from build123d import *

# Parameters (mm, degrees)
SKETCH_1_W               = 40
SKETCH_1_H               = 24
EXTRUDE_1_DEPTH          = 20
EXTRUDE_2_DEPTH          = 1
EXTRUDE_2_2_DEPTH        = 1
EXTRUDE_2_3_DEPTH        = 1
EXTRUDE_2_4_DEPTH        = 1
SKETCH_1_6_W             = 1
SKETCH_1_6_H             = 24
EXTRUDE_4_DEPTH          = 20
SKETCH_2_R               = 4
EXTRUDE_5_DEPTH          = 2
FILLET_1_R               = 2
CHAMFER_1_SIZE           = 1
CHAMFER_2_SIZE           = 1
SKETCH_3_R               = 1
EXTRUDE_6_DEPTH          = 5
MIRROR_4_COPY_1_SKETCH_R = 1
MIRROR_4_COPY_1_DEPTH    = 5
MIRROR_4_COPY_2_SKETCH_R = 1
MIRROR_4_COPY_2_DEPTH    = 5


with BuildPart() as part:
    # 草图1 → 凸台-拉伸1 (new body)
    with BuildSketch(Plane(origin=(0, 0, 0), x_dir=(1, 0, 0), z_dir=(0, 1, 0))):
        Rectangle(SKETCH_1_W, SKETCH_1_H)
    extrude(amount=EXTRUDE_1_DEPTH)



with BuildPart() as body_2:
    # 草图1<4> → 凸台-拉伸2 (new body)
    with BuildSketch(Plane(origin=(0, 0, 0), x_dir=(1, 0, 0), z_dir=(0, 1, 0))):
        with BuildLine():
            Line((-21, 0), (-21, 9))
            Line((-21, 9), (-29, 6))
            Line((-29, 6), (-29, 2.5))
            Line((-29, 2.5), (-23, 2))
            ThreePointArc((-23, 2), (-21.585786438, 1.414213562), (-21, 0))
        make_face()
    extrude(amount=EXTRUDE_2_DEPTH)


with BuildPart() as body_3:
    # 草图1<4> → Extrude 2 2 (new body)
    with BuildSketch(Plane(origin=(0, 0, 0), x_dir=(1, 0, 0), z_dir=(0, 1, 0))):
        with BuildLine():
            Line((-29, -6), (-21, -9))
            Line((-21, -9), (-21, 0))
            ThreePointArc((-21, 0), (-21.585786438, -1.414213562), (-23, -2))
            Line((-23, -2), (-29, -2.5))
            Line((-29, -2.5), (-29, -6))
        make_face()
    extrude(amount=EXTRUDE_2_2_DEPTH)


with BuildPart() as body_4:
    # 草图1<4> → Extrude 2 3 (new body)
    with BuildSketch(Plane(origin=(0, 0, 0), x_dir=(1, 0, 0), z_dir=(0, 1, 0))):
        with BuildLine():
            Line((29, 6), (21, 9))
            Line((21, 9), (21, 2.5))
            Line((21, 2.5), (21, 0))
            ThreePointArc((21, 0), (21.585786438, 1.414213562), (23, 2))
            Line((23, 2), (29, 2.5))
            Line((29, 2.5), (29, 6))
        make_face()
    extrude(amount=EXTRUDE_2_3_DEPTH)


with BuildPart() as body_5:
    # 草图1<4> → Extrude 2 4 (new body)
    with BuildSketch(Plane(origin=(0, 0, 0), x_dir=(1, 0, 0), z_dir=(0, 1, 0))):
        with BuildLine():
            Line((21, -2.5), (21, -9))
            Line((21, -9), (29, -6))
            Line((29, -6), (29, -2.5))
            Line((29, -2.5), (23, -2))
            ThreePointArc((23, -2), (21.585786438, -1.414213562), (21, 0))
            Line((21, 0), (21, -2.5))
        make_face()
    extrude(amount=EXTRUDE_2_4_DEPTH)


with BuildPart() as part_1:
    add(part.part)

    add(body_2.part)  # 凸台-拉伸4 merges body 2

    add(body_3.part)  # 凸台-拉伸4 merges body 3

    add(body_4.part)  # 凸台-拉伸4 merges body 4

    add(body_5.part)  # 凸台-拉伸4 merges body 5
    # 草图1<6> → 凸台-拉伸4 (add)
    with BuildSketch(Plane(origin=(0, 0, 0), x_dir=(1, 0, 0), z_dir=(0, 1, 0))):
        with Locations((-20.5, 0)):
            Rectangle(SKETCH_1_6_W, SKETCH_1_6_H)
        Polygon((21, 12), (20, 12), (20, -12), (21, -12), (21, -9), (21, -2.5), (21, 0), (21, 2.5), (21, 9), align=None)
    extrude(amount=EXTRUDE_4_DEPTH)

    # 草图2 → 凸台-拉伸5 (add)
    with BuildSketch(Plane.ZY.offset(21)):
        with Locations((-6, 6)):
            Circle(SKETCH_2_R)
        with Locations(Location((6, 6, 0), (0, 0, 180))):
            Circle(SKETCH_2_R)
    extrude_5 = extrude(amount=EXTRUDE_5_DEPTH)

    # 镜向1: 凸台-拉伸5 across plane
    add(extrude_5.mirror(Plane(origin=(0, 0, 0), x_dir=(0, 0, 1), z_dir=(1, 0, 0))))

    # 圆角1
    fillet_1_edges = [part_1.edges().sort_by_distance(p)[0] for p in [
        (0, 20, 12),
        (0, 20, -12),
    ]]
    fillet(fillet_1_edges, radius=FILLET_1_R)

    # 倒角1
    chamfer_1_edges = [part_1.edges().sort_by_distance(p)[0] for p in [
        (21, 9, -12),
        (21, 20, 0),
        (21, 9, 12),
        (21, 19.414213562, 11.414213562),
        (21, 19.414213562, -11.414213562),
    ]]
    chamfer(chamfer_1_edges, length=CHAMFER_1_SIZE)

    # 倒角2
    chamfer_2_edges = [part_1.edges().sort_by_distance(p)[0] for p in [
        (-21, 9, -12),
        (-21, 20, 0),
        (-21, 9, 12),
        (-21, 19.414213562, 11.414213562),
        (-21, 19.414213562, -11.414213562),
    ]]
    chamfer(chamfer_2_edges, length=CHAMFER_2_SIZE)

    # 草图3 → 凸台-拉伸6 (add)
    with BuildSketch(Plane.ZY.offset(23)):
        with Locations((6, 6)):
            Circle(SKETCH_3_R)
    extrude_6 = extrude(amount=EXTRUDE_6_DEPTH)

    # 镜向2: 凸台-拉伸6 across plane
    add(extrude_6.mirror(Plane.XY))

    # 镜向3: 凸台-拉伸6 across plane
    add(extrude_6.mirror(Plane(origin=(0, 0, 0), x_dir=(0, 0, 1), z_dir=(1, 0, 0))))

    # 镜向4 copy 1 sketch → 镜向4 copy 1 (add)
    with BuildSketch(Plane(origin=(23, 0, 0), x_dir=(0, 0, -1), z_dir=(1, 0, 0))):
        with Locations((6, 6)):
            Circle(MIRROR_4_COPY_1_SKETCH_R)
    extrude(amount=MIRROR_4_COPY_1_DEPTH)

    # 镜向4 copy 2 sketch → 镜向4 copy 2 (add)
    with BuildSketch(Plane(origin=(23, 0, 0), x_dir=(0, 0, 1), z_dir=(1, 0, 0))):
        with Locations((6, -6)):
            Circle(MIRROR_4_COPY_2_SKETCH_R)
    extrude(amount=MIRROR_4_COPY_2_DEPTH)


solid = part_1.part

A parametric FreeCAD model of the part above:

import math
import FreeCAD as App
import Part
import Sketcher


def edges_at(feature, points):
    """Names of the edges that pass closest to the given points."""
    edges = feature.Shape.Edges
    near = lambda p: min(range(len(edges)), key=lambda i: edges[i].distToShape(Part.Vertex(*p))[0])
    return sorted({f"Edge{near(p) + 1}" for p in points})

doc = App.newDocument("Part")
body = doc.addObject("PartDesign::Body", "Body")

# Sketch on XZ plane
sketch1 = body.newObject("Sketcher::SketchObject", "Sketch")
sketch1.AttachmentSupport = (doc.getObject("XZ_Plane"), [""])
sketch1.MapMode = "FlatFace"
sketch1.addGeometry(Part.LineSegment(App.Vector(-20, -12, 0), App.Vector(-20, 12, 0)), False)
sketch1.addGeometry(Part.LineSegment(App.Vector(-20, 12, 0), App.Vector(20, 12, 0)), False)
sketch1.addGeometry(Part.LineSegment(App.Vector(20, 12, 0), App.Vector(20, -12, 0)), False)
sketch1.addGeometry(Part.LineSegment(App.Vector(20, -12, 0), App.Vector(-20, -12, 0)), False)
sketch1.addConstraint(Sketcher.Constraint("Coincident", 0, 2, 1, 1))
sketch1.addConstraint(Sketcher.Constraint("Coincident", 1, 2, 2, 1))
sketch1.addConstraint(Sketcher.Constraint("Coincident", 2, 2, 3, 1))
sketch1.addConstraint(Sketcher.Constraint("Coincident", 3, 2, 0, 1))
sketch1.addConstraint(Sketcher.Constraint("Vertical", 0))
sketch1.addConstraint(Sketcher.Constraint("Horizontal", 1))
sketch1.addConstraint(Sketcher.Constraint("Vertical", 2))
sketch1.addConstraint(Sketcher.Constraint("Horizontal", 3))
sketch1.addConstraint(Sketcher.Constraint("Symmetric", 0, 2, 2, 2, -1, 1))
sketch1.addConstraint(Sketcher.Constraint("DistanceX", 1, 1, 1, 2, 40.0))
sketch1.addConstraint(Sketcher.Constraint("DistanceY", 0, 1, 0, 2, 24.0))
pad1 = body.newObject("PartDesign::Pad", "Pad")
pad1.Profile = sketch1
pad1.Length = 20
pad1.Reversed = True
body2 = doc.addObject("PartDesign::Body", "Body001")

# Sketch on XZ plane
sketch2 = body2.newObject("Sketcher::SketchObject", "Sketch001")
sketch2.AttachmentSupport = (doc.getObject("XZ_Plane001"), [""])
sketch2.MapMode = "FlatFace"
sketch2.addGeometry(Part.LineSegment(App.Vector(-21, 0, 0), App.Vector(-21, -9, 0)), False)
sketch2.addGeometry(Part.LineSegment(App.Vector(-21, -9, 0), App.Vector(-29, -6, 0)), False)
sketch2.addGeometry(Part.LineSegment(App.Vector(-29, -6, 0), App.Vector(-29, -2.5, 0)), False)
sketch2.addGeometry(Part.LineSegment(App.Vector(-29, -2.5, 0), App.Vector(-23, -2, 0)), False)
sketch2.addGeometry(Part.ArcOfCircle(Part.Circle(App.Vector(-23, 0, 0), App.Vector(0, 0, 1), 2), math.radians(-90), math.radians(0)), False)
sketch2.addConstraint(Sketcher.Constraint("Coincident", 0, 2, 1, 1))
sketch2.addConstraint(Sketcher.Constraint("Coincident", 1, 2, 2, 1))
sketch2.addConstraint(Sketcher.Constraint("Coincident", 2, 2, 3, 1))
sketch2.addConstraint(Sketcher.Constraint("Coincident", 3, 2, 4, 1))
sketch2.addConstraint(Sketcher.Constraint("Tangent", 4, 2, 0, 1))
sketch2.addConstraint(Sketcher.Constraint("Vertical", 0))
sketch2.addConstraint(Sketcher.Constraint("Vertical", 2))
sketch2.addConstraint(Sketcher.Constraint("PointOnObject", 4, 3, -1))
sketch2.addConstraint(Sketcher.Constraint("Vertical", 4, 3, 3, 2))
sketch2.addConstraint(Sketcher.Constraint("Radius", 4, 2.0))
sketch2.addConstraint(Sketcher.Constraint("DistanceY", 0, 2, 0, 1, 9.0))
sketch2.addConstraint(Sketcher.Constraint("DistanceY", 2, 1, 2, 2, 3.5))
sketch2.addConstraint(Sketcher.Constraint("DistanceX", 4, 3, -1, 1, 23.0))
sketch2.addConstraint(Sketcher.Constraint("DistanceX", 1, 2, -1, 1, 29.0))
sketch2.addConstraint(Sketcher.Constraint("DistanceY", 1, 2, -1, 1, 6.0))
pad2 = body2.newObject("PartDesign::Pad", "Pad001")
pad2.Profile = sketch2
pad2.Length = 1
pad2.Reversed = True
body3 = doc.addObject("PartDesign::Body", "Body002")

# Sketch on XZ plane
sketch3 = body3.newObject("Sketcher::SketchObject", "Sketch002")
sketch3.AttachmentSupport = (doc.getObject("XZ_Plane002"), [""])
sketch3.MapMode = "FlatFace"
sketch3.addGeometry(Part.LineSegment(App.Vector(-29, 6, 0), App.Vector(-21, 9, 0)), False)
sketch3.addGeometry(Part.LineSegment(App.Vector(-21, 9, 0), App.Vector(-21, 0, 0)), False)
sketch3.addGeometry(Part.ArcOfCircle(Part.Circle(App.Vector(-23, 0, 0), App.Vector(0, 0, 1), 2), math.radians(0), math.radians(90)), False)
sketch3.addGeometry(Part.LineSegment(App.Vector(-23, 2, 0), App.Vector(-29, 2.5, 0)), False)
sketch3.addGeometry(Part.LineSegment(App.Vector(-29, 2.5, 0), App.Vector(-29, 6, 0)), False)
sketch3.addConstraint(Sketcher.Constraint("Coincident", 0, 2, 1, 1))
sketch3.addConstraint(Sketcher.Constraint("Tangent", 1, 2, 2, 1))
sketch3.addConstraint(Sketcher.Constraint("Coincident", 2, 2, 3, 1))
sketch3.addConstraint(Sketcher.Constraint("Coincident", 3, 2, 4, 1))
sketch3.addConstraint(Sketcher.Constraint("Coincident", 4, 2, 0, 1))
sketch3.addConstraint(Sketcher.Constraint("Vertical", 1))
sketch3.addConstraint(Sketcher.Constraint("Vertical", 4))
sketch3.addConstraint(Sketcher.Constraint("PointOnObject", 2, 3, -1))
sketch3.addConstraint(Sketcher.Constraint("Radius", 2, 2.0))
sketch3.addConstraint(Sketcher.Constraint("DistanceY", 1, 2, 1, 1, 9.0))
sketch3.addConstraint(Sketcher.Constraint("DistanceY", 4, 1, 4, 2, 3.5))
sketch3.addConstraint(Sketcher.Constraint("DistanceX", 2, 3, -1, 1, 23.0))
sketch3.addConstraint(Sketcher.Constraint("DistanceX", 2, 2, -1, 1, 23.0))
sketch3.addConstraint(Sketcher.Constraint("DistanceX", 3, 2, -1, 1, 29.0))
sketch3.addConstraint(Sketcher.Constraint("DistanceY", -1, 1, 4, 2, 6.0))
pad3 = body3.newObject("PartDesign::Pad", "Pad002")
pad3.Profile = sketch3
pad3.Length = 1
pad3.Reversed = True
body4 = doc.addObject("PartDesign::Body", "Body003")

# Sketch on XZ plane
sketch4 = body4.newObject("Sketcher::SketchObject", "Sketch003")
sketch4.AttachmentSupport = (doc.getObject("XZ_Plane003"), [""])
sketch4.MapMode = "FlatFace"
sketch4.addGeometry(Part.LineSegment(App.Vector(29, -6, 0), App.Vector(21, -9, 0)), False)
sketch4.addGeometry(Part.LineSegment(App.Vector(21, -9, 0), App.Vector(21, 0, 0)), False)
sketch4.addGeometry(Part.ArcOfCircle(Part.Circle(App.Vector(23, 0, 0), App.Vector(0, 0, 1), 2), math.radians(-180), math.radians(-90)), False)
sketch4.addGeometry(Part.LineSegment(App.Vector(23, -2, 0), App.Vector(29, -2.5, 0)), False)
sketch4.addGeometry(Part.LineSegment(App.Vector(29, -2.5, 0), App.Vector(29, -6, 0)), False)
sketch4.addConstraint(Sketcher.Constraint("Coincident", 0, 2, 1, 1))
sketch4.addConstraint(Sketcher.Constraint("Tangent", 1, 2, 2, 1))
sketch4.addConstraint(Sketcher.Constraint("Coincident", 2, 2, 3, 1))
sketch4.addConstraint(Sketcher.Constraint("Coincident", 3, 2, 4, 1))
sketch4.addConstraint(Sketcher.Constraint("Coincident", 4, 2, 0, 1))
sketch4.addConstraint(Sketcher.Constraint("Vertical", 1))
sketch4.addConstraint(Sketcher.Constraint("Vertical", 4))
sketch4.addConstraint(Sketcher.Constraint("PointOnObject", 2, 3, -1))
sketch4.addConstraint(Sketcher.Constraint("Radius", 2, 2.0))
sketch4.addConstraint(Sketcher.Constraint("DistanceY", 1, 1, 1, 2, 9.0))
sketch4.addConstraint(Sketcher.Constraint("DistanceY", 4, 2, 4, 1, 3.5))
sketch4.addConstraint(Sketcher.Constraint("DistanceX", -1, 1, 2, 3, 23.0))
sketch4.addConstraint(Sketcher.Constraint("DistanceX", -1, 1, 2, 2, 23.0))
sketch4.addConstraint(Sketcher.Constraint("DistanceX", -1, 1, 3, 2, 29.0))
sketch4.addConstraint(Sketcher.Constraint("DistanceY", 4, 2, -1, 1, 6.0))
pad4 = body4.newObject("PartDesign::Pad", "Pad003")
pad4.Profile = sketch4
pad4.Length = 1
pad4.Reversed = True
body5 = doc.addObject("PartDesign::Body", "Body004")

# Sketch on XZ plane
sketch5 = body5.newObject("Sketcher::SketchObject", "Sketch004")
sketch5.AttachmentSupport = (doc.getObject("XZ_Plane004"), [""])
sketch5.MapMode = "FlatFace"
sketch5.addGeometry(Part.LineSegment(App.Vector(21, 9, 0), App.Vector(29, 6, 0)), False)
sketch5.addGeometry(Part.LineSegment(App.Vector(29, 6, 0), App.Vector(29, 2.5, 0)), False)
sketch5.addGeometry(Part.LineSegment(App.Vector(29, 2.5, 0), App.Vector(23, 2, 0)), False)
sketch5.addGeometry(Part.ArcOfCircle(Part.Circle(App.Vector(23, 0, 0), App.Vector(0, 0, 1), 2), math.radians(90), math.radians(180)), False)
sketch5.addGeometry(Part.LineSegment(App.Vector(21, 0, 0), App.Vector(21, 9, 0)), False)
sketch5.addConstraint(Sketcher.Constraint("Coincident", 0, 2, 1, 1))
sketch5.addConstraint(Sketcher.Constraint("Coincident", 1, 2, 2, 1))
sketch5.addConstraint(Sketcher.Constraint("Coincident", 2, 2, 3, 1))
sketch5.addConstraint(Sketcher.Constraint("Tangent", 3, 2, 4, 1))
sketch5.addConstraint(Sketcher.Constraint("Coincident", 4, 2, 0, 1))
sketch5.addConstraint(Sketcher.Constraint("Vertical", 1))
sketch5.addConstraint(Sketcher.Constraint("Vertical", 4))
sketch5.addConstraint(Sketcher.Constraint("PointOnObject", 3, 3, -1))
sketch5.addConstraint(Sketcher.Constraint("Vertical", 3, 3, 2, 2))
sketch5.addConstraint(Sketcher.Constraint("Radius", 3, 2.0))
sketch5.addConstraint(Sketcher.Constraint("DistanceY", 4, 1, 4, 2, 9.0))
sketch5.addConstraint(Sketcher.Constraint("DistanceY", 1, 2, 1, 1, 3.5))
sketch5.addConstraint(Sketcher.Constraint("DistanceX", -1, 1, 3, 3, 23.0))
sketch5.addConstraint(Sketcher.Constraint("DistanceX", -1, 1, 0, 2, 29.0))
sketch5.addConstraint(Sketcher.Constraint("DistanceY", -1, 1, 0, 2, 6.0))
pad5 = body5.newObject("PartDesign::Pad", "Pad004")
pad5.Profile = sketch5
pad5.Length = 1
pad5.Reversed = True
body.AllowCompound = True
doc.recompute()

boolean = body.newObject("PartDesign::Boolean", "Boolean")
boolean.Type = "Fuse"
boolean.addObjects([body2])
doc.recompute()

boolean2 = body.newObject("PartDesign::Boolean", "Boolean001")
boolean2.Type = "Fuse"
boolean2.addObjects([body3])
doc.recompute()

boolean3 = body.newObject("PartDesign::Boolean", "Boolean002")
boolean3.Type = "Fuse"
boolean3.addObjects([body4])
doc.recompute()

boolean4 = body.newObject("PartDesign::Boolean", "Boolean003")
boolean4.Type = "Fuse"
boolean4.addObjects([body5])

# Sketch on XZ plane
sketch6 = body.newObject("Sketcher::SketchObject", "Sketch005")
sketch6.AttachmentSupport = (doc.getObject("XZ_Plane"), [""])
sketch6.MapMode = "FlatFace"
sketch6.addGeometry(Part.LineSegment(App.Vector(-21, -12, 0), App.Vector(-21, 12, 0)), False)
sketch6.addGeometry(Part.LineSegment(App.Vector(-21, 12, 0), App.Vector(-20, 12, 0)), False)
sketch6.addGeometry(Part.LineSegment(App.Vector(-20, 12, 0), App.Vector(-20, -12, 0)), False)
sketch6.addGeometry(Part.LineSegment(App.Vector(-20, -12, 0), App.Vector(-21, -12, 0)), False)
sketch6.addGeometry(Part.LineSegment(App.Vector(21, -12, 0), App.Vector(20, -12, 0)), False)
sketch6.addGeometry(Part.LineSegment(App.Vector(20, -12, 0), App.Vector(20, 12, 0)), False)
sketch6.addGeometry(Part.LineSegment(App.Vector(20, 12, 0), App.Vector(21, 12, 0)), False)
sketch6.addGeometry(Part.LineSegment(App.Vector(21, 12, 0), App.Vector(21, -12, 0)), False)
sketch6.addConstraint(Sketcher.Constraint("Coincident", 0, 2, 1, 1))
sketch6.addConstraint(Sketcher.Constraint("Coincident", 1, 2, 2, 1))
sketch6.addConstraint(Sketcher.Constraint("Coincident", 2, 2, 3, 1))
sketch6.addConstraint(Sketcher.Constraint("Coincident", 3, 2, 0, 1))
sketch6.addConstraint(Sketcher.Constraint("Coincident", 4, 2, 5, 1))
sketch6.addConstraint(Sketcher.Constraint("Coincident", 5, 2, 6, 1))
sketch6.addConstraint(Sketcher.Constraint("Coincident", 6, 2, 7, 1))
sketch6.addConstraint(Sketcher.Constraint("Coincident", 7, 2, 4, 1))
sketch6.addConstraint(Sketcher.Constraint("Vertical", 0))
sketch6.addConstraint(Sketcher.Constraint("Horizontal", 1))
sketch6.addConstraint(Sketcher.Constraint("Vertical", 2))
sketch6.addConstraint(Sketcher.Constraint("Horizontal", 3))
sketch6.addConstraint(Sketcher.Constraint("Horizontal", 4))
sketch6.addConstraint(Sketcher.Constraint("Vertical", 5))
sketch6.addConstraint(Sketcher.Constraint("Horizontal", 6))
sketch6.addConstraint(Sketcher.Constraint("Vertical", 7))
sketch6.addConstraint(Sketcher.Constraint("Symmetric", 1, 2, 4, 2, -1, 1))
sketch6.addConstraint(Sketcher.Constraint("Symmetric", 3, 2, 6, 2, -1, 1))
sketch6.addConstraint(Sketcher.Constraint("Horizontal", 3, 2, 4, 2))
sketch6.addConstraint(Sketcher.Constraint("DistanceX", 1, 1, 1, 2, 1.0))
sketch6.addConstraint(Sketcher.Constraint("DistanceY", 0, 1, 0, 2, 24.0))
sketch6.addConstraint(Sketcher.Constraint("DistanceX", 0, 2, -1, 1, 21.0))
pad6 = body.newObject("PartDesign::Pad", "Pad005")
pad6.Profile = sketch6
pad6.Length = 20
pad6.Reversed = True

# Sketch on YZ plane
sketch7 = body.newObject("Sketcher::SketchObject", "Sketch006")
sketch7.AttachmentSupport = (doc.getObject("YZ_Plane"), [""])
sketch7.MapMode = "FlatFace"
sketch7.AttachmentOffset = App.Placement(App.Vector(0, 0, -21), App.Rotation())
sketch7.addGeometry(Part.Circle(App.Vector(6, -6, 0), App.Vector(0, 0, 1), 4), False)
sketch7.addGeometry(Part.Circle(App.Vector(6, 6, 0), App.Vector(0, 0, 1), 4), False)
sketch7.addConstraint(Sketcher.Constraint("Equal", 0, 1))
sketch7.addConstraint(Sketcher.Constraint("Symmetric", 0, 3, 1, 3, -1))
sketch7.addConstraint(Sketcher.Constraint("Diameter", 0, 8.0))
sketch7.addConstraint(Sketcher.Constraint("DistanceX", -1, 1, 0, 3, 6.0))
sketch7.addConstraint(Sketcher.Constraint("DistanceY", 0, 3, -1, 1, 6.0))
pad7 = body.newObject("PartDesign::Pad", "Pad006")
pad7.Profile = sketch7
pad7.Length = 2
pad7.Reversed = True
doc.recompute()

mirrored = body.newObject("PartDesign::Mirrored", "Mirrored")
mirrored.Originals = [pad7]
mirrored.MirrorPlane = (doc.getObject("YZ_Plane"), [""])
body.Tip = mirrored
doc.recompute()

fillet = body.newObject("PartDesign::Fillet", "Fillet")
fillet.Base = (mirrored, edges_at(mirrored, [(0, 20, 12), (0, 20, -12)]))
fillet.Radius = 2
doc.recompute()

chamfer = body.newObject("PartDesign::Chamfer", "Chamfer")
chamfer.Base = (fillet, edges_at(fillet, [
    (21, 9, -12),
    (21, 20, 0),
    (21, 9, 12),
    (21, 19.414, 11.414),
    (21, 19.414, -11.414),
]))
chamfer.Size = 1
doc.recompute()

chamfer2 = body.newObject("PartDesign::Chamfer", "Chamfer001")
chamfer2.Base = (chamfer, edges_at(chamfer, [
    (-21, 9, -12),
    (-21, 20, 0),
    (-21, 9, 12),
    (-21, 19.414, 11.414),
    (-21, 19.414, -11.414),
]))
chamfer2.Size = 1

# Sketch on YZ plane
sketch8 = body.newObject("Sketcher::SketchObject", "Sketch007")
sketch8.AttachmentSupport = (doc.getObject("YZ_Plane"), [""])
sketch8.MapMode = "FlatFace"
sketch8.AttachmentOffset = App.Placement(App.Vector(0, 0, -23), App.Rotation())
sketch8.addGeometry(Part.Circle(App.Vector(6, 6, 0), App.Vector(0, 0, 1), 1), False)
sketch8.addConstraint(Sketcher.Constraint("Diameter", 0, 2.0))
sketch8.addConstraint(Sketcher.Constraint("DistanceX", -1, 1, 0, 3, 6.0))
sketch8.addConstraint(Sketcher.Constraint("DistanceY", -1, 1, 0, 3, 6.0))
pad8 = body.newObject("PartDesign::Pad", "Pad007")
pad8.Profile = sketch8
pad8.Length = 5
pad8.Reversed = True
doc.recompute()

mirrored2 = body.newObject("PartDesign::Mirrored", "Mirrored001")
mirrored2.Originals = [pad8]
mirrored2.MirrorPlane = (doc.getObject("XY_Plane"), [""])
body.Tip = mirrored2
doc.recompute()

mirrored3 = body.newObject("PartDesign::Mirrored", "Mirrored002")
mirrored3.Originals = [pad8]
mirrored3.MirrorPlane = (doc.getObject("YZ_Plane"), [""])
body.Tip = mirrored3

# Sketch on YZ plane
sketch9 = body.newObject("Sketcher::SketchObject", "Sketch008")
sketch9.AttachmentSupport = (doc.getObject("YZ_Plane"), [""])
sketch9.MapMode = "FlatFace"
sketch9.AttachmentOffset = App.Placement(App.Vector(0, 0, 23), App.Rotation())
sketch9.addGeometry(Part.Circle(App.Vector(6, -6, 0), App.Vector(0, 0, 1), 1), False)
sketch9.addConstraint(Sketcher.Constraint("Diameter", 0, 2.0))
sketch9.addConstraint(Sketcher.Constraint("DistanceX", -1, 1, 0, 3, 6.0))
sketch9.addConstraint(Sketcher.Constraint("DistanceY", 0, 3, -1, 1, 6.0))
pad9 = body.newObject("PartDesign::Pad", "Pad008")
pad9.Profile = sketch9
pad9.Length = 5

# Sketch on YZ plane
sketch10 = body.newObject("Sketcher::SketchObject", "Sketch009")
sketch10.AttachmentSupport = (doc.getObject("YZ_Plane"), [""])
sketch10.MapMode = "FlatFace"
sketch10.AttachmentOffset = App.Placement(App.Vector(0, 0, 23), App.Rotation())
sketch10.addGeometry(Part.Circle(App.Vector(6, 6, 0), App.Vector(0, 0, 1), 1), False)
sketch10.addConstraint(Sketcher.Constraint("Diameter", 0, 2.0))
sketch10.addConstraint(Sketcher.Constraint("DistanceX", -1, 1, 0, 3, 6.0))
sketch10.addConstraint(Sketcher.Constraint("DistanceY", -1, 1, 0, 3, 6.0))
pad10 = body.newObject("PartDesign::Pad", "Pad009")
pad10.Profile = sketch10
pad10.Length = 5

doc.recompute()
